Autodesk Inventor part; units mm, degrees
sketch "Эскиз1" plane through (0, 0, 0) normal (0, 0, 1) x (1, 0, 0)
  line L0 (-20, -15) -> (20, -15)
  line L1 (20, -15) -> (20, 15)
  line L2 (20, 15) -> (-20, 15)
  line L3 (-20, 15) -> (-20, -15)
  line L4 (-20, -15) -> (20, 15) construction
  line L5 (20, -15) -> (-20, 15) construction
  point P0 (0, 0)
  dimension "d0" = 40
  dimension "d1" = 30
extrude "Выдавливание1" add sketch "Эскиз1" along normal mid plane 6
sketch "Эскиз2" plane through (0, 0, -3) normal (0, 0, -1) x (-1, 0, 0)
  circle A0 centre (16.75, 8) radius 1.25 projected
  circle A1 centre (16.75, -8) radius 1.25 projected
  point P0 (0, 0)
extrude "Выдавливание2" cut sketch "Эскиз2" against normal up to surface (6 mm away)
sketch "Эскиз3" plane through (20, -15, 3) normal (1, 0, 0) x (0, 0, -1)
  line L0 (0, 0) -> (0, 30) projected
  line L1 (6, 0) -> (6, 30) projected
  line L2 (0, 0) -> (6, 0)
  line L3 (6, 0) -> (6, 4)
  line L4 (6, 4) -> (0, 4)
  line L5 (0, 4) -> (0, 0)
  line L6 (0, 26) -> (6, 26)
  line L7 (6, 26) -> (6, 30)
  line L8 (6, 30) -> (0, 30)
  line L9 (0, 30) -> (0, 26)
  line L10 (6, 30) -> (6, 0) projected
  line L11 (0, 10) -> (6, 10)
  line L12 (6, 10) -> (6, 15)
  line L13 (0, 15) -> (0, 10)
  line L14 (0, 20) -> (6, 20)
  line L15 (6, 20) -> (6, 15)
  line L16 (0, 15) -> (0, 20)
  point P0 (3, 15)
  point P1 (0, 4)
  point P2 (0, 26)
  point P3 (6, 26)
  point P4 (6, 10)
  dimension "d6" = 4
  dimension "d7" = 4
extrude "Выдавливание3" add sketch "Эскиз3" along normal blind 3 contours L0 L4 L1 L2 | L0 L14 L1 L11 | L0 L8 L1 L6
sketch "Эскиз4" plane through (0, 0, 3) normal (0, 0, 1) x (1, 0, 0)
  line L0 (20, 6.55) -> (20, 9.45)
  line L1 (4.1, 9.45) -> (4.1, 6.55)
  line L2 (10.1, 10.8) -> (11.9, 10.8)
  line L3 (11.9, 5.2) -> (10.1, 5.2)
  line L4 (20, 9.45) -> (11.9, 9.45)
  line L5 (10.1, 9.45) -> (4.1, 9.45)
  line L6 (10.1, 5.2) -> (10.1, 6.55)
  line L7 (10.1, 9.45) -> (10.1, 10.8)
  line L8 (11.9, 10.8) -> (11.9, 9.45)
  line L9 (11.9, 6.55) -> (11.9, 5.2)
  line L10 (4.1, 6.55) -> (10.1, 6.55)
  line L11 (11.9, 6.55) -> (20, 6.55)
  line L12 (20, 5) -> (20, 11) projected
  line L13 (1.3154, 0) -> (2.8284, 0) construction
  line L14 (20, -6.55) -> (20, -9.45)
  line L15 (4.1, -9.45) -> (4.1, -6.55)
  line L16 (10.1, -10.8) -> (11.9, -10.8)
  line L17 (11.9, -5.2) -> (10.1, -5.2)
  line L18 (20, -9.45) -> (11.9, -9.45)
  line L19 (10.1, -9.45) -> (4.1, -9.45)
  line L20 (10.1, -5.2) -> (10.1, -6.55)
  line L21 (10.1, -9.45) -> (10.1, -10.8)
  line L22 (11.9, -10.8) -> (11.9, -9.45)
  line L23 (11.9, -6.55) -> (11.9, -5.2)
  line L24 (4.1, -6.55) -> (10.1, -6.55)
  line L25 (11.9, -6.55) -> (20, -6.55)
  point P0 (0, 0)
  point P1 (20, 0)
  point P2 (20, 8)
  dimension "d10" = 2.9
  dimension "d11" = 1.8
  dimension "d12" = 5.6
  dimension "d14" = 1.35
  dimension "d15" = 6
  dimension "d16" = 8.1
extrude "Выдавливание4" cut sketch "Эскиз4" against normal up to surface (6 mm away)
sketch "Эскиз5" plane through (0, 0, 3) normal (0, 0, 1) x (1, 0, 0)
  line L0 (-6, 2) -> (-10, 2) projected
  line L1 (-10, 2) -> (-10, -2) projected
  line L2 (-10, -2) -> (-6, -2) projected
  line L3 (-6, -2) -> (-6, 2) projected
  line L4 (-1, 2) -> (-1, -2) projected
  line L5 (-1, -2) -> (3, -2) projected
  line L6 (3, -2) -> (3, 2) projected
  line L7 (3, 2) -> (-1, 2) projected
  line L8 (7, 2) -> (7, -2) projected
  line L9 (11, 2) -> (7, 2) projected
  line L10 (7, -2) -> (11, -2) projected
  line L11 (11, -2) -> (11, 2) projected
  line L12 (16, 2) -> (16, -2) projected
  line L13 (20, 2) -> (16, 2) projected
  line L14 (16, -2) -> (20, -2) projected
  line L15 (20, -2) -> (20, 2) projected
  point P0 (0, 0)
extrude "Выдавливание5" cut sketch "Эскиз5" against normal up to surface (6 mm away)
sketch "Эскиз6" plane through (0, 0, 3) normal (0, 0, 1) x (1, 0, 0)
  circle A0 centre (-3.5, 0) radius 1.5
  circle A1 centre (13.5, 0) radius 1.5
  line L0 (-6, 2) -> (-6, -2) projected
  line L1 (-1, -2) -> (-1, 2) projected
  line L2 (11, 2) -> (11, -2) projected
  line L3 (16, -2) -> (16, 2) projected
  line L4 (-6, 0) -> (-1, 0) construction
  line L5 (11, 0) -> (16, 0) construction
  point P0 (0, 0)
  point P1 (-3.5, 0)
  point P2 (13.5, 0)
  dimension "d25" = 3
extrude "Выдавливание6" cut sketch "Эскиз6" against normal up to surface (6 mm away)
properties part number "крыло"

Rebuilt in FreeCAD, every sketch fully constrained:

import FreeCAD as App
import Part
import Sketcher
from FreeCAD import Vector
Q = App.Units.Quantity


def add_polygon(sketch, points):
    """Adds a closed chain of lines whose ends are joined by coincident constraints."""
    first, n = sketch.GeometryCount, len(points)
    for a, b in zip(points, points[1:] + points[:1]):
        sketch.addGeometry(Part.LineSegment(App.Vector(*a, 0), App.Vector(*b, 0)), False)
    for i in range(n):
        sketch.addConstraint(Sketcher.Constraint("Coincident", first + i, 2, first + (i + 1) % n, 1))

doc = App.newDocument("Part")
body = doc.addObject("PartDesign::Body", "Body")

# Sketch on XY plane
sketch1 = doc.addObject("Sketcher::SketchObject", "Sketch")
body.addObject(sketch1)
sketch1.AttachmentSupport = (doc.XY_Plane, [""])
sketch1.MapMode = "FlatFace"
add_polygon(sketch1, [(-20, 15), (-20, -15), (20, -15), (20, 15)])  # lines 0-3
sketch1.addConstraint([
    Sketcher.Constraint("Vertical", 0),
    Sketcher.Constraint("Horizontal", 1),
    Sketcher.Constraint("Vertical", 2),
    Sketcher.Constraint("Horizontal", 3),
    Sketcher.Constraint("Symmetric", 0, 2, 2, 2, -1, 1),
    Sketcher.Constraint("DistanceX", 1, 1, 1, 2, Q("40 mm")),
    Sketcher.Constraint("DistanceY", 0, 2, 0, 1, Q("30 mm")),
])
pad1 = doc.addObject("PartDesign::Pad", "Pad")
body.addObject(pad1)
pad1.Profile = sketch1
pad1.Length = 6
pad1.Midplane = True

# Sketch on XY plane
sketch2 = doc.addObject("Sketcher::SketchObject", "Sketch001")
body.addObject(sketch2)
sketch2.AttachmentSupport = (doc.XY_Plane, [""])
sketch2.MapMode = "FlatFace"
sketch2.AttachmentOffset = App.Placement(Vector(0, 0, -3), App.Rotation())
sketch2.addGeometry([
    Part.Circle(Vector(-16.75, 8, 0), Vector(0, 0, 1), 1.25),
    Part.Circle(Vector(-16.75, -8, 0), Vector(0, 0, 1), 1.25),
], False)
sketch2.addConstraint([
    Sketcher.Constraint("Equal", 0, 1),
    Sketcher.Constraint("Symmetric", 0, 3, 1, 3, -1),
    Sketcher.Constraint("Diameter", 0, Q("2.5 mm")),
    Sketcher.Constraint("DistanceY", -1, 1, 0, 3, Q("8 mm")),
    Sketcher.Constraint("DistanceX", 0, 3, -1, 1, Q("16.75 mm")),
])
pocket1 = doc.addObject("PartDesign::Pocket", "Pocket")
body.addObject(pocket1)
pocket1.Profile = sketch2
pocket1.Length = 6
pocket1.Reversed = True

# Sketch on YZ plane
sketch3 = doc.addObject("Sketcher::SketchObject", "Sketch002")
body.addObject(sketch3)
sketch3.AttachmentSupport = (doc.YZ_Plane, [""])
sketch3.MapMode = "FlatFace"
sketch3.AttachmentOffset = App.Placement(Vector(0, 0, 20), App.Rotation())
add_polygon(sketch3, [(-11, 3), (-15, 3), (-15, -3), (-11, -3)])  # lines 0-3
add_polygon(sketch3, [(5, 3), (-5, 3), (-5, -3), (5, -3)])  # lines 4-7
add_polygon(sketch3, [(15, 3), (11, 3), (11, -3), (15, -3)])  # lines 8-11
sketch3.addConstraint([
    Sketcher.Constraint("Horizontal", 0),
    Sketcher.Constraint("Vertical", 1),
    Sketcher.Constraint("Horizontal", 2),
    Sketcher.Constraint("Vertical", 3),
    Sketcher.Constraint("Horizontal", 4),
    Sketcher.Constraint("Vertical", 5),
    Sketcher.Constraint("Horizontal", 6),
    Sketcher.Constraint("Vertical", 7),
    Sketcher.Constraint("Horizontal", 8),
    Sketcher.Constraint("Vertical", 9),
    Sketcher.Constraint("Horizontal", 10),
    Sketcher.Constraint("Vertical", 11),
    Sketcher.Constraint("Symmetric", 4, 2, 6, 2, -1, 1),
    Sketcher.Constraint("Symmetric", 2, 2, 8, 2, -1, 1),
    Sketcher.Constraint("Symmetric", 0, 2, 10, 2, -1, 1),
    Sketcher.Constraint("Horizontal", 3, 2, 4, 2),
    Sketcher.Constraint("Horizontal", 2, 2, 5, 2),
    Sketcher.Constraint("DistanceX", 0, 2, 0, 1, Q("4 mm")),
    Sketcher.Constraint("DistanceX", 4, 2, 4, 1, Q("10 mm")),
    Sketcher.Constraint("DistanceY", 1, 2, 1, 1, Q("6 mm")),
    Sketcher.Constraint("DistanceX", 0, 2, -1, 1, Q("15 mm")),
])
pad2 = doc.addObject("PartDesign::Pad", "Pad001")
body.addObject(pad2)
pad2.Profile = sketch3
pad2.Length = 3

# Sketch on XY plane
sketch4 = doc.addObject("Sketcher::SketchObject", "Sketch003")
body.addObject(sketch4)
sketch4.AttachmentSupport = (doc.XY_Plane, [""])
sketch4.MapMode = "FlatFace"
sketch4.AttachmentOffset = App.Placement(Vector(0, 0, 3), App.Rotation())
add_polygon(sketch4, [(11.9, 6.55), (20, 6.55), (20, 9.45), (11.9, 9.45), (11.9, 10.8), (10.1, 10.8), (10.1, 9.45), (4.1, 9.45), (4.1, 6.55), (10.1, 6.55), (10.1, 5.2), (11.9, 5.2)])  # lines 0-11
add_polygon(sketch4, [(20, -9.45), (20, -6.55), (11.9, -6.55), (11.9, -5.2), (10.1, -5.2), (10.1, -6.55), (4.1, -6.55), (4.1, -9.45), (10.1, -9.45), (10.1, -10.8), (11.9, -10.8), (11.9, -9.45)])  # lines 12-23
sketch4.addConstraint([
    Sketcher.Constraint("Horizontal", 0),
    Sketcher.Constraint("Vertical", 1),
    Sketcher.Constraint("Horizontal", 2),
    Sketcher.Constraint("Vertical", 3),
    Sketcher.Constraint("Horizontal", 4),
    Sketcher.Constraint("Vertical", 5),
    Sketcher.Constraint("Horizontal", 6),
    Sketcher.Constraint("Vertical", 7),
    Sketcher.Constraint("Horizontal", 8),
    Sketcher.Constraint("Vertical", 9),
    Sketcher.Constraint("Horizontal", 10),
    Sketcher.Constraint("Vertical", 11),
    Sketcher.Constraint("Vertical", 12),
    Sketcher.Constraint("Horizontal", 13),
    Sketcher.Constraint("Vertical", 14),
    Sketcher.Constraint("Horizontal", 15),
    Sketcher.Constraint("Vertical", 16),
    Sketcher.Constraint("Horizontal", 17),
    Sketcher.Constraint("Vertical", 18),
    Sketcher.Constraint("Horizontal", 19),
    Sketcher.Constraint("Vertical", 20),
    Sketcher.Constraint("Horizontal", 21),
    Sketcher.Constraint("Vertical", 22),
    Sketcher.Constraint("Horizontal", 23),
    Sketcher.Constraint("Symmetric", 0, 2, 12, 2, -1),
    Sketcher.Constraint("Symmetric", 10, 2, 14, 2, -1),
    Sketcher.Constraint("Symmetric", 8, 2, 16, 2, -1),
    Sketcher.Constraint("Symmetric", 6, 2, 18, 2, -1),
    Sketcher.Constraint("Symmetric", 4, 2, 20, 2, -1),
    Sketcher.Constraint("Symmetric", 2, 2, 22, 2, -1),
    Sketcher.Constraint("Horizontal", 2, 2, 5, 2),
    Sketcher.Constraint("Horizontal", 0, 2, 7, 2),
    Sketcher.Constraint("Vertical", 5, 2, 8, 2),
    Sketcher.Constraint("Vertical", 3, 2, 10, 2),
    Sketcher.Constraint("Equal", 5, 9),
    Sketcher.Constraint("DistanceX", 6, 2, 6, 1, Q("6 mm")),
    Sketcher.Constraint("DistanceX", 0, 1, 0, 2, Q("8.1 mm")),
    Sketcher.Constraint("DistanceX", 4, 2, 4, 1, Q("1.8 mm")),
    Sketcher.Constraint("DistanceY", 1, 1, 1, 2, Q("2.9 mm")),
    Sketcher.Constraint("DistanceY", 3, 1, 3, 2, Q("1.35 mm")),
    Sketcher.Constraint("DistanceX", -1, 1, 0, 2, Q("20 mm")),
    Sketcher.Constraint("DistanceY", 12, 2, 1, 2, Q("16 mm")),
])
pocket2 = doc.addObject("PartDesign::Pocket", "Pocket001")
body.addObject(pocket2)
pocket2.Profile = sketch4
pocket2.Length = 6

# Sketch on XY plane
sketch5 = doc.addObject("Sketcher::SketchObject", "Sketch004")
body.addObject(sketch5)
sketch5.AttachmentSupport = (doc.XY_Plane, [""])
sketch5.MapMode = "FlatFace"
sketch5.AttachmentOffset = App.Placement(Vector(0, 0, 3), App.Rotation())
add_polygon(sketch5, [(-6, -2), (-6, 2), (-10, 2), (-10, -2)])  # lines 0-3
add_polygon(sketch5, [(3, 2), (-1, 2), (-1, -2), (3, -2)])  # lines 4-7
add_polygon(sketch5, [(11, 2), (7, 2), (7, -2), (11, -2)])  # lines 8-11
add_polygon(sketch5, [(20, 2), (16, 2), (16, -2), (20, -2)])  # lines 12-15
sketch5.addConstraint([
    Sketcher.Constraint("Vertical", 0),
    Sketcher.Constraint("Horizontal", 1),
    Sketcher.Constraint("Vertical", 2),
    Sketcher.Constraint("Horizontal", 3),
    Sketcher.Constraint("Horizontal", 4),
    Sketcher.Constraint("Vertical", 5),
    Sketcher.Constraint("Horizontal", 6),
    Sketcher.Constraint("Vertical", 7),
    Sketcher.Constraint("Horizontal", 8),
    Sketcher.Constraint("Vertical", 9),
    Sketcher.Constraint("Horizontal", 10),
    Sketcher.Constraint("Vertical", 11),
    Sketcher.Constraint("Horizontal", 12),
    Sketcher.Constraint("Vertical", 13),
    Sketcher.Constraint("Horizontal", 14),
    Sketcher.Constraint("Vertical", 15),
    Sketcher.Constraint("Horizontal", 1, 2, 4, 2),
    Sketcher.Constraint("Horizontal", 3, 2, 5, 2),
    Sketcher.Constraint("Horizontal", 7, 2, 8, 2),
    Sketcher.Constraint("Horizontal", 6, 2, 9, 2),
    Sketcher.Constraint("Horizontal", 11, 2, 12, 2),
    Sketcher.Constraint("Horizontal", 10, 2, 13, 2),
    Sketcher.Constraint("Equal", 3, 4),
    Sketcher.Constraint("Equal", 6, 8),
    Sketcher.Constraint("Equal", 10, 12),
    Sketcher.Constraint("Equal", 14, 0),
    Sketcher.Constraint("DistanceX", 1, 2, 1, 1, Q("4 mm")),
    Sketcher.Constraint("DistanceX", 0, 2, -1, 1, Q("6 mm")),
    Sketcher.Constraint("DistanceY", -1, 1, 0, 2, Q("2 mm")),
    Sketcher.Constraint("DistanceX", 4, 2, -1, 1, Q("1 mm")),
    Sketcher.Constraint("DistanceX", -1, 1, 8, 2, Q("7 mm")),
    Sketcher.Constraint("DistanceX", -1, 1, 12, 2, Q("16 mm")),
])
pocket3 = doc.addObject("PartDesign::Pocket", "Pocket002")
body.addObject(pocket3)
pocket3.Profile = sketch5
pocket3.Length = 6

# Sketch on XY plane
sketch6 = doc.addObject("Sketcher::SketchObject", "Sketch005")
body.addObject(sketch6)
sketch6.AttachmentSupport = (doc.XY_Plane, [""])
sketch6.MapMode = "FlatFace"
sketch6.AttachmentOffset = App.Placement(Vector(0, 0, 3), App.Rotation())
sketch6.addGeometry([
    Part.Circle(Vector(-3.5, 0, 0), Vector(0, 0, 1), 1.5),
    Part.Circle(Vector(13.5, 0, 0), Vector(0, 0, 1), 1.5),
], False)
sketch6.addConstraint([
    Sketcher.Constraint("Equal", 0, 1),
    Sketcher.Constraint("PointOnObject", 0, 3, -1),
    Sketcher.Constraint("PointOnObject", 1, 3, -1),
    Sketcher.Constraint("Diameter", 0, Q("3 mm")),
    Sketcher.Constraint("DistanceX", 0, 3, 1, 3, Q("17 mm")),
    Sketcher.Constraint("DistanceX", 0, 3, -1, 1, Q("3.5 mm")),
])
pocket4 = doc.addObject("PartDesign::Pocket", "Pocket003")
body.addObject(pocket4)
pocket4.Profile = sketch6
pocket4.Length = 6

doc.recompute()
